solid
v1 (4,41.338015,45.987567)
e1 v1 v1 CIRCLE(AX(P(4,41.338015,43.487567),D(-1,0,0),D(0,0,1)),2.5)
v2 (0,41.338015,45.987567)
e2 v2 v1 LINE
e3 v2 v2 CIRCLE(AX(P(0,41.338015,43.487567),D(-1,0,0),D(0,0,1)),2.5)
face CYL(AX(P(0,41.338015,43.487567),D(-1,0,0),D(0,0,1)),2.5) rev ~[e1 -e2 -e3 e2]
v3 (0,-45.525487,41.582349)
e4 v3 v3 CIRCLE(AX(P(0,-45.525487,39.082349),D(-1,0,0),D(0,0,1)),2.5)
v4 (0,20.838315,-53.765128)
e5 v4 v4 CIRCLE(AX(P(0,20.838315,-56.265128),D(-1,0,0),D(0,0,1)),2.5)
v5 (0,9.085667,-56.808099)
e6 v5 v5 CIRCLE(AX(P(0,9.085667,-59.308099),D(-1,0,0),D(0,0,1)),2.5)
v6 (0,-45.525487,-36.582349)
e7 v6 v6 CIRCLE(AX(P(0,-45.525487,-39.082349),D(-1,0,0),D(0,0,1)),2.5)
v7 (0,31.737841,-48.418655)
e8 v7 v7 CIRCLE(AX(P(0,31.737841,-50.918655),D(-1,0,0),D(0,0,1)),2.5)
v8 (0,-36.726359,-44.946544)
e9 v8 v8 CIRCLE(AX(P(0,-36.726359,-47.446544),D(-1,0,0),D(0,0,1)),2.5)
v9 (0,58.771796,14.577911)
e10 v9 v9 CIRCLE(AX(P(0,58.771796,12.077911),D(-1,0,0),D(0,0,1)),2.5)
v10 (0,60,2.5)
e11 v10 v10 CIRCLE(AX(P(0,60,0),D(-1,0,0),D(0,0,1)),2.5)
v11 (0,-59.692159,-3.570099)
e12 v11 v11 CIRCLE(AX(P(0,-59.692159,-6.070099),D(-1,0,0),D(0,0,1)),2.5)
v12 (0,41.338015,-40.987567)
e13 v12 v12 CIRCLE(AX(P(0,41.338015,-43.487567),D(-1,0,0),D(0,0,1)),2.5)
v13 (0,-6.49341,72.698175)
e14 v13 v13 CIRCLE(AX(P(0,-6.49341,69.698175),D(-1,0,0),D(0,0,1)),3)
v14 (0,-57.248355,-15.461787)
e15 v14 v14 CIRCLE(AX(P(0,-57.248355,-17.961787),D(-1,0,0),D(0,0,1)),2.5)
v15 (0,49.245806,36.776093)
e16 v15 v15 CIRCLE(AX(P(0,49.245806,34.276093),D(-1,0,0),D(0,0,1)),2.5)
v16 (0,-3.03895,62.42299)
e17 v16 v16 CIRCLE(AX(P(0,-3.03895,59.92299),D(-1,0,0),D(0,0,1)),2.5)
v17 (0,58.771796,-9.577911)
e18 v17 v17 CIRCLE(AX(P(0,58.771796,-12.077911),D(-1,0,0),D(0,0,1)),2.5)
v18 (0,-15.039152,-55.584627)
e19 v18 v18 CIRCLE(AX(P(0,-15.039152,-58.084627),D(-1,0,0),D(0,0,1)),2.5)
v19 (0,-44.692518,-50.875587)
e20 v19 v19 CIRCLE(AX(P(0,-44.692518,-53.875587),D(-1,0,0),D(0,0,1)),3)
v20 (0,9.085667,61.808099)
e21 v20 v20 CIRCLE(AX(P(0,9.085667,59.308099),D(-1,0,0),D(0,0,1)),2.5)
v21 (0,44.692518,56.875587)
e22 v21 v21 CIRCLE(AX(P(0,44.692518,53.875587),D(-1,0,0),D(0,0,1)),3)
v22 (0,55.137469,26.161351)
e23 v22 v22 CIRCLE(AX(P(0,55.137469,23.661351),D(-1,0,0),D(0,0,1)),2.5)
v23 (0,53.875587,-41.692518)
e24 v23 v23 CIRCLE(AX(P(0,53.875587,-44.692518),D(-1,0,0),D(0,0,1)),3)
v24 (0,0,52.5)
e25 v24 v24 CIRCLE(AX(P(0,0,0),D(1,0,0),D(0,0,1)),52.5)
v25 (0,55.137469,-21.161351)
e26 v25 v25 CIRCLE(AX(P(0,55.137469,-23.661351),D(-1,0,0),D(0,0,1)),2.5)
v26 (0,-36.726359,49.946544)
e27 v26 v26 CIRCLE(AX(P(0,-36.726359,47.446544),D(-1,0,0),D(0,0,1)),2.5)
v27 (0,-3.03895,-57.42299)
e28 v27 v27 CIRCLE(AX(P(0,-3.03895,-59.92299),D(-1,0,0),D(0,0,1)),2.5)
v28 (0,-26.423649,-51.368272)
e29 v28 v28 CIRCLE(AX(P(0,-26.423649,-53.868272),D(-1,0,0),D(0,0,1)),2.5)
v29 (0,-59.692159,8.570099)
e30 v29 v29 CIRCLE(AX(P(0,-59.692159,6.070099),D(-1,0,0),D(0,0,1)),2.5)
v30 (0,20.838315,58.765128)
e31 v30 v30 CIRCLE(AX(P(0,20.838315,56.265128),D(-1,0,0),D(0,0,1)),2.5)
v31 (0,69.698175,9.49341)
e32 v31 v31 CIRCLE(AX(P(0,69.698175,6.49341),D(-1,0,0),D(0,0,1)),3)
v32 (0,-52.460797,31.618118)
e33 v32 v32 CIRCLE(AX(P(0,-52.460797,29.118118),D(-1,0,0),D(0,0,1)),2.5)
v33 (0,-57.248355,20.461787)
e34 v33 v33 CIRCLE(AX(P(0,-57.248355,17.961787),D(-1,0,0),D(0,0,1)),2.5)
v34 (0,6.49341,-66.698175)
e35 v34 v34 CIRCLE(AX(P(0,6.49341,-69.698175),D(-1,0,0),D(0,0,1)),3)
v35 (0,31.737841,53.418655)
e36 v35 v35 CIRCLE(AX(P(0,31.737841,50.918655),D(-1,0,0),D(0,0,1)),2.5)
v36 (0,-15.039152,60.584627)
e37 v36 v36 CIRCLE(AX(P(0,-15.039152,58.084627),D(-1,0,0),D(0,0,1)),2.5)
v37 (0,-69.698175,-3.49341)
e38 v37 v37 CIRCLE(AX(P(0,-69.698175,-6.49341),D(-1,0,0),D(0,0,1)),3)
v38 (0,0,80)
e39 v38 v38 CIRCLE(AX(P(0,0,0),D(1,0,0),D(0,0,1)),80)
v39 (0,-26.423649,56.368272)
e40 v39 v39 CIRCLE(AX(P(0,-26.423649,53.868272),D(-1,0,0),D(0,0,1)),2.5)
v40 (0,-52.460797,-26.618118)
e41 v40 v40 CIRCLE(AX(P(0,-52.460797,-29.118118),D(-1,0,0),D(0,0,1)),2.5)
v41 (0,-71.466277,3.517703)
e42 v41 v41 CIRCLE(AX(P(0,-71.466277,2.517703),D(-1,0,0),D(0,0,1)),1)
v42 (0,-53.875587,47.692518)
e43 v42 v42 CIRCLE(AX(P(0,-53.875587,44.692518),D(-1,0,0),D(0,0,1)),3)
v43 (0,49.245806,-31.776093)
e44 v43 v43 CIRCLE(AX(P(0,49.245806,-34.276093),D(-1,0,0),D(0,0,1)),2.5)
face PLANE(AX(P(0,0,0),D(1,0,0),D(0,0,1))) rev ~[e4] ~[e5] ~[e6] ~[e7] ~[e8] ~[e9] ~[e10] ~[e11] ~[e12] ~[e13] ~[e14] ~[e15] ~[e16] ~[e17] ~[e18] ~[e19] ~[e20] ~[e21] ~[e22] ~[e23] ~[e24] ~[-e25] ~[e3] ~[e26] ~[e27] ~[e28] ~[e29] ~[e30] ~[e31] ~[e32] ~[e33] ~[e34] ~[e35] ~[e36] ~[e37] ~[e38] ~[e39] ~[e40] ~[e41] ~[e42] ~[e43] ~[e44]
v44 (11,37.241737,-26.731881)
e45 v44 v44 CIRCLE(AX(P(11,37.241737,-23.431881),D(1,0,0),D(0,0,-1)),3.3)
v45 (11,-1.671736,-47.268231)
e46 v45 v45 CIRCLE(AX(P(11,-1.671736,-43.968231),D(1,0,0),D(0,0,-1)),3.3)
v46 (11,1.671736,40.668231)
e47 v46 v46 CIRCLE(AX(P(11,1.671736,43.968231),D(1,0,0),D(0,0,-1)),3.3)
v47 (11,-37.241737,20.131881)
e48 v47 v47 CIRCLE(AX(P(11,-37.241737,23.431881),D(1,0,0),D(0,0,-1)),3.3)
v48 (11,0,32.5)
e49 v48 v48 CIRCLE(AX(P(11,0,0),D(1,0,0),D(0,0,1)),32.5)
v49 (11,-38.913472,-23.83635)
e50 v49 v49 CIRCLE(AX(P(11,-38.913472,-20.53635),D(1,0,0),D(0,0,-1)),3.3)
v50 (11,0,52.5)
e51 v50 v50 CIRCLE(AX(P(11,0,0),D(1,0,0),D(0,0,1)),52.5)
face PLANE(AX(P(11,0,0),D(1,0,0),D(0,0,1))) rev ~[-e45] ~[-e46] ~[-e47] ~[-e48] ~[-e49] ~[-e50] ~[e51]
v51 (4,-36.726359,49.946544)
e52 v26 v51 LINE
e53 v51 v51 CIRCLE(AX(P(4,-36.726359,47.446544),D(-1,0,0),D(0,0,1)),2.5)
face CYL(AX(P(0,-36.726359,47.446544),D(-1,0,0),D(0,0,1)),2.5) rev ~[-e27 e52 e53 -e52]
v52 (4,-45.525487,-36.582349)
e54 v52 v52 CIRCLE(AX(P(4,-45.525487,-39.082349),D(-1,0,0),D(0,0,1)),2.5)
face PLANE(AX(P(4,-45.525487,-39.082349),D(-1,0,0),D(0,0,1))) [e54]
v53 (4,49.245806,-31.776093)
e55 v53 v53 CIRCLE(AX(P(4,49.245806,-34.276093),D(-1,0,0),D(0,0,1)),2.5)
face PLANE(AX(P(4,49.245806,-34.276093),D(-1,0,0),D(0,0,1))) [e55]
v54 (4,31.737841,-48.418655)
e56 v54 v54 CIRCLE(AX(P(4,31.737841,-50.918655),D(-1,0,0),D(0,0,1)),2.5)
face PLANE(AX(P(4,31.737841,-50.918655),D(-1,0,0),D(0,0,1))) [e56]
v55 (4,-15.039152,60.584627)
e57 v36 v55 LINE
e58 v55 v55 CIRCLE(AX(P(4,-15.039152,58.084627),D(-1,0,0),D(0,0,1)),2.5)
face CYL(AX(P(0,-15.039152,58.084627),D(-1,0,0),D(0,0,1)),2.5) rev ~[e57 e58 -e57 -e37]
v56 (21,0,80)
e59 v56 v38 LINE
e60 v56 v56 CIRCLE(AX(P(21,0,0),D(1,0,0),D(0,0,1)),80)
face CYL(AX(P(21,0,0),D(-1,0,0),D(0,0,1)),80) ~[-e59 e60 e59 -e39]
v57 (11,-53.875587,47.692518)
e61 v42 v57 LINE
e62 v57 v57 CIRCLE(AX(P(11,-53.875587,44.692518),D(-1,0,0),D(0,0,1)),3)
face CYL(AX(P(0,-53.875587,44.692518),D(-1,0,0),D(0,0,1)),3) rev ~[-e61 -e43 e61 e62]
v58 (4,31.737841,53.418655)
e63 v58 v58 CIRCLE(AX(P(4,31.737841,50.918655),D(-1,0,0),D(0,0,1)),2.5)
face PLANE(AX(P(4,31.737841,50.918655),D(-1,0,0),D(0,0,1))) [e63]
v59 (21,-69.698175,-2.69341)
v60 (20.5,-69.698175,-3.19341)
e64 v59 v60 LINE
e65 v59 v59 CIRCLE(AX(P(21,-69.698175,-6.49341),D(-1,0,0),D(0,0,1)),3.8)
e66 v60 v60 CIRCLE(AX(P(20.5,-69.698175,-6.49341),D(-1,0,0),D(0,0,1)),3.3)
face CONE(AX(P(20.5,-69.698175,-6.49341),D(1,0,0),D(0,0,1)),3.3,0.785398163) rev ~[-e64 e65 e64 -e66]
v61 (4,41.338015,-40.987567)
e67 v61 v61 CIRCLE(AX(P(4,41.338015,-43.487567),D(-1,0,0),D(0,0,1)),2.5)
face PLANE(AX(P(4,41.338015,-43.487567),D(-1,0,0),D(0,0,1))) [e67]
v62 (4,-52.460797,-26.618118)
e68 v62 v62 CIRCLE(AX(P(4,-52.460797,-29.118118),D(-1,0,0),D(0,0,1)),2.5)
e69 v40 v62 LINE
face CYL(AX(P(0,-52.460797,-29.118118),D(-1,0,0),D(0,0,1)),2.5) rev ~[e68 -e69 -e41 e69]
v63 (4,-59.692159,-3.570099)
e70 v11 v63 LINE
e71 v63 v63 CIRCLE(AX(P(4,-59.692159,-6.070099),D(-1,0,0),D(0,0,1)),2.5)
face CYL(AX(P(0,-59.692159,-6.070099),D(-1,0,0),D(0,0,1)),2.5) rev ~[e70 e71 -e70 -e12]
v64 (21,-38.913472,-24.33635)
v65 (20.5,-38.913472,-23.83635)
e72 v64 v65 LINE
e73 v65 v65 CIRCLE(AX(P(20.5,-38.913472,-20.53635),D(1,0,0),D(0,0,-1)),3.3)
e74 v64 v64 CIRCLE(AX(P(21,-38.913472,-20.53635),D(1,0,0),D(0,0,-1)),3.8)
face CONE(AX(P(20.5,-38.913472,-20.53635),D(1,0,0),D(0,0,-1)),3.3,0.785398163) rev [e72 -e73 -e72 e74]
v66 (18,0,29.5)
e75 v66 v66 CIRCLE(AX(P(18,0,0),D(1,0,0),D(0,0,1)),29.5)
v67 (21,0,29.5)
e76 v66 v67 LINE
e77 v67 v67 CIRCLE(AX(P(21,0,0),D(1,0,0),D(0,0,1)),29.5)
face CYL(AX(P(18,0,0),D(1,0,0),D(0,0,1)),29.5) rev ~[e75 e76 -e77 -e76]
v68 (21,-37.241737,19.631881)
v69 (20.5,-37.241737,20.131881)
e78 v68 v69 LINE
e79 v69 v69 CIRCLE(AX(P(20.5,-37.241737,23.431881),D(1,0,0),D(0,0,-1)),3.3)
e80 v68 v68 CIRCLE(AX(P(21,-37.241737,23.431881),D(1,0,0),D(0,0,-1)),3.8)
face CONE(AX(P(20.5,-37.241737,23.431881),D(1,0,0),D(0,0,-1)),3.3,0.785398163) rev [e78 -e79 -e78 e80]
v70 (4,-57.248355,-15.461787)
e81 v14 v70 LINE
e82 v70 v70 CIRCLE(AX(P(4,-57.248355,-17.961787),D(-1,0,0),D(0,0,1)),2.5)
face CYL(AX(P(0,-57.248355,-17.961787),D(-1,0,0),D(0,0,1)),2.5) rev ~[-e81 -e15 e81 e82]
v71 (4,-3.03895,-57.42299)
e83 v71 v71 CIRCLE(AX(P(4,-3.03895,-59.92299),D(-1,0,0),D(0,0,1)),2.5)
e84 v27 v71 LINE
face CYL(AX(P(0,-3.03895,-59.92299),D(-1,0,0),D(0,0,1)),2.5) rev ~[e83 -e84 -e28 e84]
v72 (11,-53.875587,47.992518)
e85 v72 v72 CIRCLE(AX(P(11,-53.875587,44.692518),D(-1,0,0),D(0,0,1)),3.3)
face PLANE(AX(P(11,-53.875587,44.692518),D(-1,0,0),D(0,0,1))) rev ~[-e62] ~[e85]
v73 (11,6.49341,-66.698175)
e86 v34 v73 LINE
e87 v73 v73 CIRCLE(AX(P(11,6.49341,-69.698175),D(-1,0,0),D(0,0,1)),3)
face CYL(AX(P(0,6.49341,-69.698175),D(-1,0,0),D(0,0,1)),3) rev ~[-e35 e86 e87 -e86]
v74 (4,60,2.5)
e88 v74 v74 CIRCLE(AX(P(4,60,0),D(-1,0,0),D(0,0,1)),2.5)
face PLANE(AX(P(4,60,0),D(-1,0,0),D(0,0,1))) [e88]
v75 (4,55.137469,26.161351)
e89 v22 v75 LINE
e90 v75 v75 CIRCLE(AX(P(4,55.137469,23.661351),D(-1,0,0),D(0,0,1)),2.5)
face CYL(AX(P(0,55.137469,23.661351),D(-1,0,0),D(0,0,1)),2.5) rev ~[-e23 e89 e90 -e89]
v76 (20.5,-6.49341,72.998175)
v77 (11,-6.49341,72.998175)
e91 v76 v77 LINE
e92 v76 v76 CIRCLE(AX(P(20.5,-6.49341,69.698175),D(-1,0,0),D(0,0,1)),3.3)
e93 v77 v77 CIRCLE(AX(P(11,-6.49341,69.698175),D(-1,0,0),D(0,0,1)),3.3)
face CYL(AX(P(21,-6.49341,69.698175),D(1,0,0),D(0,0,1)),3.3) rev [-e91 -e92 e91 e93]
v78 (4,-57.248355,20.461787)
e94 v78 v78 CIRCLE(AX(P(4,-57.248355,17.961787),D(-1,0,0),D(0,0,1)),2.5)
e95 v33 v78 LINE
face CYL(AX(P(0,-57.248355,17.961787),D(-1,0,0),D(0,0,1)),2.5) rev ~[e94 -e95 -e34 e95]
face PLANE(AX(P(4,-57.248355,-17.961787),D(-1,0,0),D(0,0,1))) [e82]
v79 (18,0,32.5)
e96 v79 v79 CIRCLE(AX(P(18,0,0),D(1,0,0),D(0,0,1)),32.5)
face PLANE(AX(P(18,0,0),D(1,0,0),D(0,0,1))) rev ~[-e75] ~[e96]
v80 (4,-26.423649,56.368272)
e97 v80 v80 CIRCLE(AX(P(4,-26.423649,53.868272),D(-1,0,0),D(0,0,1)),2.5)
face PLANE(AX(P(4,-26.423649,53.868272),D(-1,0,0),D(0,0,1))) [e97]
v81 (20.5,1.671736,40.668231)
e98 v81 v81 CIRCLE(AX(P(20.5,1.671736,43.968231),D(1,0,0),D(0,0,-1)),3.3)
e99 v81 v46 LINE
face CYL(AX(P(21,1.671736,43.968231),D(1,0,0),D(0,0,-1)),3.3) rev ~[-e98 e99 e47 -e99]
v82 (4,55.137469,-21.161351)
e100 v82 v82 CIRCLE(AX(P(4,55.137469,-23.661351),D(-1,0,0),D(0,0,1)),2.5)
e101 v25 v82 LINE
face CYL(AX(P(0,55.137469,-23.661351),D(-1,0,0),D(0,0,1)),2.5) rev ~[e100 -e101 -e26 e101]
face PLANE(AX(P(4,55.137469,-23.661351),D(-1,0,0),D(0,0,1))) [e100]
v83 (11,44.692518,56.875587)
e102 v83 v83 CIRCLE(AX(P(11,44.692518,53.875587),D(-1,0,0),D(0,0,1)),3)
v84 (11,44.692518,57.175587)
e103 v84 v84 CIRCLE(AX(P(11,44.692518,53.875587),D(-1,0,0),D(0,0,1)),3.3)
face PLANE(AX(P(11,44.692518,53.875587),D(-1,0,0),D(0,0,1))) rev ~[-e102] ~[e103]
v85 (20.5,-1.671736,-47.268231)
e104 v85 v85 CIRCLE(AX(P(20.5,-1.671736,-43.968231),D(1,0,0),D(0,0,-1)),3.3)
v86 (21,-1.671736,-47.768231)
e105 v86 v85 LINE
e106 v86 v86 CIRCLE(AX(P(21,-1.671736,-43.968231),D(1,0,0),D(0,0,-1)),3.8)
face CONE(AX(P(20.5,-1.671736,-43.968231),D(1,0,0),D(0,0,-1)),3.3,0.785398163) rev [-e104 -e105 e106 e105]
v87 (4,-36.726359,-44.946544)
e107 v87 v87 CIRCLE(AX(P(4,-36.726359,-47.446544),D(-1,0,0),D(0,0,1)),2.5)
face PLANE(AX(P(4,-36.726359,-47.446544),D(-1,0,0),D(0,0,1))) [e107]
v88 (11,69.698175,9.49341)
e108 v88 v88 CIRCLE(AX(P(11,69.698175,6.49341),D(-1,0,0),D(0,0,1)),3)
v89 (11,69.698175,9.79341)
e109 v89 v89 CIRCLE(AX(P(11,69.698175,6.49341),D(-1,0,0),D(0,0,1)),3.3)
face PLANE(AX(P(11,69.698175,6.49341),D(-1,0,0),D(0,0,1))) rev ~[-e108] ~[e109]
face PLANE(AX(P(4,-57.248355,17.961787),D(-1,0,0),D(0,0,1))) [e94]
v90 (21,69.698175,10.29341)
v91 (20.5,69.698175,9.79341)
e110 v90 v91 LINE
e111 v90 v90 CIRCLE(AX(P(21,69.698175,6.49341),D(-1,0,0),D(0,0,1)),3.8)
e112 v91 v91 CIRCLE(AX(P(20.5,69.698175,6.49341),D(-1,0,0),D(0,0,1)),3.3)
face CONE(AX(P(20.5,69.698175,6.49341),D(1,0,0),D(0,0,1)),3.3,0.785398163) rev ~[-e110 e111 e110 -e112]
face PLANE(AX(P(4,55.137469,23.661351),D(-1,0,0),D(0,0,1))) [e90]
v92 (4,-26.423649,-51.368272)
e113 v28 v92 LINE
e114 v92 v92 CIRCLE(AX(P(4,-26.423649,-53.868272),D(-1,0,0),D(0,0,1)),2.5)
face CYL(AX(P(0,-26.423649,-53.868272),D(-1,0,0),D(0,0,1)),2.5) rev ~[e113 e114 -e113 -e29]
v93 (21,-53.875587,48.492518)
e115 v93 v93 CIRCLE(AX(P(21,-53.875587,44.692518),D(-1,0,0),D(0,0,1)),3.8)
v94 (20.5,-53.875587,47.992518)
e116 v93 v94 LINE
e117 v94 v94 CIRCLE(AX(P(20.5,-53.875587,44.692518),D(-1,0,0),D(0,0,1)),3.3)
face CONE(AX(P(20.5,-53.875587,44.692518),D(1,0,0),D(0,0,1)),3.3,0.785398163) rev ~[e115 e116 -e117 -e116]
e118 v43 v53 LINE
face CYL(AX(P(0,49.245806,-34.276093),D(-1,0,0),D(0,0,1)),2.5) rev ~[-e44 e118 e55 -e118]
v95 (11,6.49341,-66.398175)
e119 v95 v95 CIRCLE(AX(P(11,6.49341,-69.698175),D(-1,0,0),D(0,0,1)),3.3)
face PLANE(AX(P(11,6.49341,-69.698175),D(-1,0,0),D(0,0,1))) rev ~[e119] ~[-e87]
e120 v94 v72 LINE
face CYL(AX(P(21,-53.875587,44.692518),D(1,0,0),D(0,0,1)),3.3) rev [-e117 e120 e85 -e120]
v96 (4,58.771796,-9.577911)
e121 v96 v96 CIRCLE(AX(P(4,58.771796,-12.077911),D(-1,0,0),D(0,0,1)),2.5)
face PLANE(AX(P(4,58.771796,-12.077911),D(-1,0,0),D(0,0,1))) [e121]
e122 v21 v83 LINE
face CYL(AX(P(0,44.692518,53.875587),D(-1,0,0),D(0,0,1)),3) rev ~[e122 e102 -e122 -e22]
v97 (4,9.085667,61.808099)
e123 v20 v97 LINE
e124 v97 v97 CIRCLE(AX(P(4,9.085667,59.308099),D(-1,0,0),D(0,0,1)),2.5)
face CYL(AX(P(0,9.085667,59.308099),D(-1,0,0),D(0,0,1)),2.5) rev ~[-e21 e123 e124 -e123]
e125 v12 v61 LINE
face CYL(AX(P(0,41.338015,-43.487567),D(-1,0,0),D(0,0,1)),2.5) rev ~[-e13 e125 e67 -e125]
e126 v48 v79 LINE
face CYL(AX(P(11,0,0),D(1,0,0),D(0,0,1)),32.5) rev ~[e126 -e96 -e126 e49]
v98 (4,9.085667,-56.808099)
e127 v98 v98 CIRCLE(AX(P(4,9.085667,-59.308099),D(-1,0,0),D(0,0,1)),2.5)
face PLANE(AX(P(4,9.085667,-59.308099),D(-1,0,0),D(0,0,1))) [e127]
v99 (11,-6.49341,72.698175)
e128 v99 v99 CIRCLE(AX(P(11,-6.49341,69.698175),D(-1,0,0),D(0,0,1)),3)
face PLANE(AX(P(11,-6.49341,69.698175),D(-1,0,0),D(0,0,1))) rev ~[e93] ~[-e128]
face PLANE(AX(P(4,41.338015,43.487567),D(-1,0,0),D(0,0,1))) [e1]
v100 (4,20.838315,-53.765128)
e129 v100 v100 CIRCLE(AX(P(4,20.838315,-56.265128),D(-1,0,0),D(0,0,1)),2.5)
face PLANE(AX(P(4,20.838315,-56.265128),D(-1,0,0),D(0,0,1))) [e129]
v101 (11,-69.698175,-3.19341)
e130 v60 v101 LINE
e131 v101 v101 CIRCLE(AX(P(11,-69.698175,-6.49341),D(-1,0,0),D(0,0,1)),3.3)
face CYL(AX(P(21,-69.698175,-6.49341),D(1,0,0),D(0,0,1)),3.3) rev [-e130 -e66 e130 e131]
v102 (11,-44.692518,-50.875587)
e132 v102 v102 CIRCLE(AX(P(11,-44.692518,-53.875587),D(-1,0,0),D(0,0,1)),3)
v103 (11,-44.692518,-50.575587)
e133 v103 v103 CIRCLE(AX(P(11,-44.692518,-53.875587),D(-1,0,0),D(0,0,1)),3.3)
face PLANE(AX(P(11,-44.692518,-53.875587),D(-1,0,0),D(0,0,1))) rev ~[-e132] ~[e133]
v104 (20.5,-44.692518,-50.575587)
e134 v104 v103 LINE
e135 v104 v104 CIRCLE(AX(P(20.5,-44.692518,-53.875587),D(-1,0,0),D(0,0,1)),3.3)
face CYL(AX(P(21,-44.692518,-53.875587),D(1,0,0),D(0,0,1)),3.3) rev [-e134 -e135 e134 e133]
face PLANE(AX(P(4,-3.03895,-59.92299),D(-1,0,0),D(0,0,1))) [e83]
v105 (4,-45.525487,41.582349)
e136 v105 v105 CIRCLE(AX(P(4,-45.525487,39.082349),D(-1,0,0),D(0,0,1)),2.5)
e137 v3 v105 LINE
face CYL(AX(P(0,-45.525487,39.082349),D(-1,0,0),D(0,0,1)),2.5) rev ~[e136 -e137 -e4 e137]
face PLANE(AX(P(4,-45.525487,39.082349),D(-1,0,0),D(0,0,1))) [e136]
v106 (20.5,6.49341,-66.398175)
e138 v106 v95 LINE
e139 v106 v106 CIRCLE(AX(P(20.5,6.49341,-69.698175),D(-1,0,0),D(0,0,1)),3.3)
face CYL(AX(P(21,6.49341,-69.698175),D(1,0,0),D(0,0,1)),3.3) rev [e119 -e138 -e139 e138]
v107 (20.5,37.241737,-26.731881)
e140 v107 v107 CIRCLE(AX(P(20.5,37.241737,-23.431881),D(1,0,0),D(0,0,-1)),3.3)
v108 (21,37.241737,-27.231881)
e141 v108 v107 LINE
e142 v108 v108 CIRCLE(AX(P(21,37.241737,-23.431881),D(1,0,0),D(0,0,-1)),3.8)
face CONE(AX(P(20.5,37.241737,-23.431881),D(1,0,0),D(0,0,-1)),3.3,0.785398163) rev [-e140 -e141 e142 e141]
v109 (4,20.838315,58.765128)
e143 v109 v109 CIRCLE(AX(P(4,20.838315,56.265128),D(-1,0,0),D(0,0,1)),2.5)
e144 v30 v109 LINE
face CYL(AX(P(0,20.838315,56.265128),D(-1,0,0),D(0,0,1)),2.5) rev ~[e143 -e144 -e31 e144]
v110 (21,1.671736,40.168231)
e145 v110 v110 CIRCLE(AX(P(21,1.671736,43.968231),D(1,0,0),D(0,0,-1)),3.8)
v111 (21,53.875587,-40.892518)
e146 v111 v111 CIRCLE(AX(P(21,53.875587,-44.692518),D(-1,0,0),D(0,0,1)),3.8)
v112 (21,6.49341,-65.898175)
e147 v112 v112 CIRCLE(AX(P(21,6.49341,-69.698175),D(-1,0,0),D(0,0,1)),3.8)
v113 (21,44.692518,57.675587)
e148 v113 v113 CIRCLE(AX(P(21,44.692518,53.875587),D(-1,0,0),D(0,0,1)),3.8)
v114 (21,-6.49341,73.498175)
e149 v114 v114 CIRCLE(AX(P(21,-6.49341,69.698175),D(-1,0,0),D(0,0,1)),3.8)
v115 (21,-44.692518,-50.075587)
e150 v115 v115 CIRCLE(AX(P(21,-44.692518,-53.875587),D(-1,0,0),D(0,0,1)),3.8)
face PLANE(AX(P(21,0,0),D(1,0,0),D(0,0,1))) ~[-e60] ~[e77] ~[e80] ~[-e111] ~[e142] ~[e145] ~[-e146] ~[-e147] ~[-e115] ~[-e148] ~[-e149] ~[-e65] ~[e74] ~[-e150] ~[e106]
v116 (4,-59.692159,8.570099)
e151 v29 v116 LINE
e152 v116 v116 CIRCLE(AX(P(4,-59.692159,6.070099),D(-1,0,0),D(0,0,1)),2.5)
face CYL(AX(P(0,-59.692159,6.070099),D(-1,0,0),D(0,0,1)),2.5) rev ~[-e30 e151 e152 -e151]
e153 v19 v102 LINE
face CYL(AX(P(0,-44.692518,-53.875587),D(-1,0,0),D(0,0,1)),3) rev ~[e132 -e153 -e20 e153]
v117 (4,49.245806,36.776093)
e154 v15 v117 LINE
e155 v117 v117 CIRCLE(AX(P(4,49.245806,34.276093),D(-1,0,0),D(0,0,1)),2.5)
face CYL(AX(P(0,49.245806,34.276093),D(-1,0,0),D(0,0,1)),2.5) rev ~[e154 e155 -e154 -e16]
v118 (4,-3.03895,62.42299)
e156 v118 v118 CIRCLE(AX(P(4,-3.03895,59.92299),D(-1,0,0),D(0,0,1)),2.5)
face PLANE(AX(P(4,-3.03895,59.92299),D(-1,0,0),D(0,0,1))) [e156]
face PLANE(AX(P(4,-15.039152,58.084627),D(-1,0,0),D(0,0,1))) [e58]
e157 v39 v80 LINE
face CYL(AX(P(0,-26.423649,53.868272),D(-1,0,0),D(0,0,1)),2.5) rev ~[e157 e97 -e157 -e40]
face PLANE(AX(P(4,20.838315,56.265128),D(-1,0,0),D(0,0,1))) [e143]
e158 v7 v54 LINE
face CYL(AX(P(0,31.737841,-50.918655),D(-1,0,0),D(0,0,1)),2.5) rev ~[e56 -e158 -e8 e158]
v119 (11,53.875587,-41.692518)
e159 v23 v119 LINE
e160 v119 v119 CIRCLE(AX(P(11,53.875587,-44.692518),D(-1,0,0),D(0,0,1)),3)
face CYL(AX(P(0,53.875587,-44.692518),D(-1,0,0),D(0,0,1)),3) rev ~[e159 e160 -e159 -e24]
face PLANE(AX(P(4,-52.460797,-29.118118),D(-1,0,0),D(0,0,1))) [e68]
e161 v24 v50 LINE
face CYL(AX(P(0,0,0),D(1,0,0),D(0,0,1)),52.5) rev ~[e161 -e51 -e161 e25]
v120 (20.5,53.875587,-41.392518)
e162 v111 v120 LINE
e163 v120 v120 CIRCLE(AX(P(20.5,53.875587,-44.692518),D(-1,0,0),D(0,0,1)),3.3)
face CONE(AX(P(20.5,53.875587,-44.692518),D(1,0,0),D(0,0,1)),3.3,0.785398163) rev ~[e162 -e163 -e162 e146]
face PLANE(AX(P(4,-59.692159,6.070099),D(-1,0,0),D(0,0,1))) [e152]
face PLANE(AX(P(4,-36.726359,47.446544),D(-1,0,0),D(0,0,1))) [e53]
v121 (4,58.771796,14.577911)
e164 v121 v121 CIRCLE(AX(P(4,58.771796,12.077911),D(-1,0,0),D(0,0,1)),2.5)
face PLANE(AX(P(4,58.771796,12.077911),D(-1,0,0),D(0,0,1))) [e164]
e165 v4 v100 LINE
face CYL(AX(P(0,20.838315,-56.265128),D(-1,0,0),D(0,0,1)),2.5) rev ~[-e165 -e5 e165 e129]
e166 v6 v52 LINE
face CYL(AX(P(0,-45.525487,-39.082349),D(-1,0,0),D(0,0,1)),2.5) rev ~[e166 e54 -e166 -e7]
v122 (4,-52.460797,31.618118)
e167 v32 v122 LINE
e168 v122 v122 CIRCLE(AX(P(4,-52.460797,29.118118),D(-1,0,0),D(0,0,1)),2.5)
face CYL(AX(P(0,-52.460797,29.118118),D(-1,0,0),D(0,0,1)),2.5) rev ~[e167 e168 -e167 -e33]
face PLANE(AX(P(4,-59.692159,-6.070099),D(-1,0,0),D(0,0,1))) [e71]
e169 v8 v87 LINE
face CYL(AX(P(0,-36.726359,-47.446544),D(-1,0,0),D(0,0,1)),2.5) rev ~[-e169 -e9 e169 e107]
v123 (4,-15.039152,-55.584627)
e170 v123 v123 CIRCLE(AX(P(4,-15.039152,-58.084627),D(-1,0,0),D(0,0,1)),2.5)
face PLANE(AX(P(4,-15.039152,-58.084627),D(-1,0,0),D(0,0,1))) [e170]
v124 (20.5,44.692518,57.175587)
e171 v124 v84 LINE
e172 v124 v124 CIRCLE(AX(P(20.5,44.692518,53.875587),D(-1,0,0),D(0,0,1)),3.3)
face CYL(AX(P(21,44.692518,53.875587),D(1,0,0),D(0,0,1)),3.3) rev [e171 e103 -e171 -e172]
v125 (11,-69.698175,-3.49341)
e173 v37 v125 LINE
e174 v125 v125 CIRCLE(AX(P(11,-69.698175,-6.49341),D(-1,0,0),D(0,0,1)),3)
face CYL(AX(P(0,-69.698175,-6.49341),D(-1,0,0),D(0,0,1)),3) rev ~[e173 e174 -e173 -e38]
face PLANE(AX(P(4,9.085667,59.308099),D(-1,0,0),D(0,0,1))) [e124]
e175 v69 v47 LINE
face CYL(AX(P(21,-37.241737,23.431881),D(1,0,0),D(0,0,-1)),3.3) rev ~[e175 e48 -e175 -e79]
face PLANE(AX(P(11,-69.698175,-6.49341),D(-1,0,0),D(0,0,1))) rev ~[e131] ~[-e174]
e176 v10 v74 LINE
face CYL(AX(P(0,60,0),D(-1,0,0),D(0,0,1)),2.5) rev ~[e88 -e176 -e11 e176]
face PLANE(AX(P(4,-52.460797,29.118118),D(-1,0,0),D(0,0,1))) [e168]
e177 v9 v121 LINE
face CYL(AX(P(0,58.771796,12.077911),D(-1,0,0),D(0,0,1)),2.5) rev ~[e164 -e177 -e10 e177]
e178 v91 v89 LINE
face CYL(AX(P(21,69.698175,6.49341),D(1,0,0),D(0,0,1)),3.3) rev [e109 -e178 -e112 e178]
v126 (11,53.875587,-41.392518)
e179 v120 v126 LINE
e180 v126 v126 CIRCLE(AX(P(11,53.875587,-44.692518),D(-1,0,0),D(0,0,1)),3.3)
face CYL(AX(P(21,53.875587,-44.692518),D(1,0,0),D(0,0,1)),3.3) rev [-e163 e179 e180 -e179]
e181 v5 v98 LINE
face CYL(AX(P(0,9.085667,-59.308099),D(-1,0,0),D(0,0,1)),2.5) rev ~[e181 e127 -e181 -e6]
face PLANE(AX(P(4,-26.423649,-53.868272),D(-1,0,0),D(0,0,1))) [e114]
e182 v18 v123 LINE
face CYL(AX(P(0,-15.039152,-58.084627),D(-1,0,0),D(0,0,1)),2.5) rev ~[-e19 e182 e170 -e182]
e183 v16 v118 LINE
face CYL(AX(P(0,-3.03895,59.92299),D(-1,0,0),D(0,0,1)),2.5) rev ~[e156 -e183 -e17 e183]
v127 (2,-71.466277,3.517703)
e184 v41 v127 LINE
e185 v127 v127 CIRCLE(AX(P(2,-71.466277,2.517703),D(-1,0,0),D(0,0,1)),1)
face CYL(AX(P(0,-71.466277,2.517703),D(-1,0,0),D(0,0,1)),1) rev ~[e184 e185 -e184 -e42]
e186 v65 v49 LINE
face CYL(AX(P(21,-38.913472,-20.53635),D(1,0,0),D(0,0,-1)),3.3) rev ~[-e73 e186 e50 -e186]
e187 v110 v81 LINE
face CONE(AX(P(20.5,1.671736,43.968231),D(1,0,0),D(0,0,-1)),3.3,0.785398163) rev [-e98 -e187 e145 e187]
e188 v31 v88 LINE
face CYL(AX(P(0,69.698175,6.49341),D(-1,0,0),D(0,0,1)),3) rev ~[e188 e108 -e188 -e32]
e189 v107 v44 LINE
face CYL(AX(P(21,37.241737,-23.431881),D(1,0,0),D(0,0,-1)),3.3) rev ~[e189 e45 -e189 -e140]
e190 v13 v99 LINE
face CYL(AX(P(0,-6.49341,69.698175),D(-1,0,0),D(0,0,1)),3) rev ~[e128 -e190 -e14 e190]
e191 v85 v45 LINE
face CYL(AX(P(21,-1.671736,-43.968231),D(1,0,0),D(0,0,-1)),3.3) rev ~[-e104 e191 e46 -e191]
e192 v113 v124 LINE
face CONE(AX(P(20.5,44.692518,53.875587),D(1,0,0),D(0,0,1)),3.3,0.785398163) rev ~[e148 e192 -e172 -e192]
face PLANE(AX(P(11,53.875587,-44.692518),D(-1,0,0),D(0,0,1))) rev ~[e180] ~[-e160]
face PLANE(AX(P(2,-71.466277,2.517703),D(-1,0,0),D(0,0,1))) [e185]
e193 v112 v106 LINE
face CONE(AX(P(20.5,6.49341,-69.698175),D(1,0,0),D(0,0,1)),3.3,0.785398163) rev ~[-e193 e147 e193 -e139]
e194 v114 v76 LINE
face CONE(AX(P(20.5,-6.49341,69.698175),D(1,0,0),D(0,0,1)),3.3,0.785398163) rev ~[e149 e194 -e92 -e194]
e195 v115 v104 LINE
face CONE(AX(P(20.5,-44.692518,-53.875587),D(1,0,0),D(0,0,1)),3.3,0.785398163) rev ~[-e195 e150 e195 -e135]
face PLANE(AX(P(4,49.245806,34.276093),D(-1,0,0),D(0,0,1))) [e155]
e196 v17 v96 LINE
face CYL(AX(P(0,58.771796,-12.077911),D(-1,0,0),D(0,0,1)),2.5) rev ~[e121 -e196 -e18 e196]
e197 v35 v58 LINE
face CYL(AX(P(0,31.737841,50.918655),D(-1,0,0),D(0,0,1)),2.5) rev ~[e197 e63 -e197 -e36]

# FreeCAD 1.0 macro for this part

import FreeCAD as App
import Part
import Sketcher
Q = App.Units.Quantity


def edges_at(feature, points):
    """Names of the edges that pass closest to the given points."""
    edges = feature.Shape.Edges
    near = lambda p: min(range(len(edges)), key=lambda i: edges[i].distToShape(Part.Vertex(*p))[0])
    return sorted({f"Edge{near(p) + 1}" for p in points})

doc = App.newDocument("Part")
body = doc.addObject("PartDesign::Body", "Body")

# Sketch on XY plane
sketch1 = body.newObject("Sketcher::SketchObject", "Sketch")
sketch1.AttachmentSupport = (doc.getObject("XY_Plane"), [""])
sketch1.MapMode = "FlatFace"
sketch1.addGeometry([
    Part.LineSegment(App.Vector(0, 80, 0), App.Vector(0, 52.5, 0)),  # 0
    Part.LineSegment(App.Vector(0, 52.5, 0), App.Vector(11, 52.5, 0)),  # 1
    Part.LineSegment(App.Vector(11, 52.5, 0), App.Vector(11, 32.5, 0)),  # 2
    Part.LineSegment(App.Vector(11, 32.5, 0), App.Vector(18, 32.5, 0)),  # 3
    Part.LineSegment(App.Vector(18, 32.5, 0), App.Vector(18, 29.5, 0)),  # 4
    Part.LineSegment(App.Vector(18, 29.5, 0), App.Vector(21, 29.5, 0)),  # 5
    Part.LineSegment(App.Vector(21, 29.5, 0), App.Vector(21, 80, 0)),  # 6
    Part.LineSegment(App.Vector(21, 80, 0), App.Vector(0, 80, 0)),  # 7
], False)
sketch1.addConstraint([
    Sketcher.Constraint("Coincident", 0, 2, 1, 1),
    Sketcher.Constraint("Coincident", 1, 2, 2, 1),
    Sketcher.Constraint("Coincident", 2, 2, 3, 1),
    Sketcher.Constraint("Coincident", 3, 2, 4, 1),
    Sketcher.Constraint("Coincident", 4, 2, 5, 1),
    Sketcher.Constraint("Coincident", 5, 2, 6, 1),
    Sketcher.Constraint("Coincident", 6, 2, 7, 1),
    Sketcher.Constraint("Coincident", 7, 2, 0, 1),
    Sketcher.Constraint("Vertical", 0),
    Sketcher.Constraint("Horizontal", 1),
    Sketcher.Constraint("Vertical", 2),
    Sketcher.Constraint("Horizontal", 3),
    Sketcher.Constraint("Vertical", 4),
    Sketcher.Constraint("Horizontal", 5),
    Sketcher.Constraint("Vertical", 6),
    Sketcher.Constraint("Horizontal", 7),
    Sketcher.Constraint("PointOnObject", 0, 2, -2),
    Sketcher.Constraint("Equal", 5, 4),
    Sketcher.Constraint("DistanceX", 1, 1, 1, 2, Q("11 mm")),
    Sketcher.Constraint("DistanceX", 3, 1, 3, 2, Q("7 mm")),
    Sketcher.Constraint("DistanceX", 5, 1, 5, 2, Q("3 mm")),
    Sketcher.Constraint("DistanceY", 2, 2, 2, 1, Q("20 mm")),
    Sketcher.Constraint("DistanceY", 0, 2, 0, 1, Q("27.5 mm")),
    Sketcher.Constraint("DistanceY", -1, 1, 6, 2, Q("80 mm")),
])
revolution = body.newObject("PartDesign::Revolution", "Revolution")
revolution.Profile = sketch1
revolution.ReferenceAxis = (sketch1, ["H_Axis"])
revolution.Angle = 360

# Sketch on YZ plane
sketch2 = body.newObject("Sketcher::SketchObject", "Sketch001")
sketch2.AttachmentSupport = (doc.getObject("YZ_Plane"), [""])
sketch2.MapMode = "FlatFace"
sketch2.addGeometry([
    Part.Circle(App.Vector(60, 0, 0), App.Vector(0, 0, 1), 2.5),  # 0
    Part.Circle(App.Vector(58.8, 12.1, 0), App.Vector(0, 0, 1), 2.5),  # 1
    Part.Circle(App.Vector(55.1, 23.7, 0), App.Vector(0, 0, 1), 2.5),  # 2
    Part.Circle(App.Vector(49.2, 34.3, 0), App.Vector(0, 0, 1), 2.5),  # 3
    Part.Circle(App.Vector(41.3, 43.5, 0), App.Vector(0, 0, 1), 2.5),  # 4
    Part.Circle(App.Vector(31.7, 50.9, 0), App.Vector(0, 0, 1), 2.5),  # 5
    Part.Circle(App.Vector(20.8, 56.3, 0), App.Vector(0, 0, 1), 2.5),  # 6
    Part.Circle(App.Vector(9.1, 59.3, 0), App.Vector(0, 0, 1), 2.5),  # 7
    Part.Circle(App.Vector(-3, 59.9, 0), App.Vector(0, 0, 1), 2.5),  # 8
    Part.Circle(App.Vector(-15, 58.1, 0), App.Vector(0, 0, 1), 2.5),  # 9
    Part.Circle(App.Vector(-26.4, 53.9, 0), App.Vector(0, 0, 1), 2.5),  # 10
    Part.Circle(App.Vector(-36.7, 47.4, 0), App.Vector(0, 0, 1), 2.5),  # 11
    Part.Circle(App.Vector(-45.5, 39.1, 0), App.Vector(0, 0, 1), 2.5),  # 12
    Part.Circle(App.Vector(-52.5, 29.1, 0), App.Vector(0, 0, 1), 2.5),  # 13
    Part.Circle(App.Vector(-57.2, 18, 0), App.Vector(0, 0, 1), 2.5),  # 14
    Part.Circle(App.Vector(-59.7, 6.1, 0), App.Vector(0, 0, 1), 2.5),  # 15
    Part.Circle(App.Vector(-59.7, -6.1, 0), App.Vector(0, 0, 1), 2.5),  # 16
    Part.Circle(App.Vector(-57.2, -18, 0), App.Vector(0, 0, 1), 2.5),  # 17
    Part.Circle(App.Vector(-52.5, -29.1, 0), App.Vector(0, 0, 1), 2.5),  # 18
    Part.Circle(App.Vector(-45.5, -39.1, 0), App.Vector(0, 0, 1), 2.5),  # 19
    Part.Circle(App.Vector(-36.7, -47.4, 0), App.Vector(0, 0, 1), 2.5),  # 20
    Part.Circle(App.Vector(-26.4, -53.9, 0), App.Vector(0, 0, 1), 2.5),  # 21
    Part.Circle(App.Vector(-15, -58.1, 0), App.Vector(0, 0, 1), 2.5),  # 22
    Part.Circle(App.Vector(-3, -59.9, 0), App.Vector(0, 0, 1), 2.5),  # 23
    Part.Circle(App.Vector(9.1, -59.3, 0), App.Vector(0, 0, 1), 2.5),  # 24
    Part.Circle(App.Vector(20.8, -56.3, 0), App.Vector(0, 0, 1), 2.5),  # 25
    Part.Circle(App.Vector(31.7, -50.9, 0), App.Vector(0, 0, 1), 2.5),  # 26
    Part.Circle(App.Vector(41.3, -43.5, 0), App.Vector(0, 0, 1), 2.5),  # 27
    Part.Circle(App.Vector(49.2, -34.3, 0), App.Vector(0, 0, 1), 2.5),  # 28
    Part.Circle(App.Vector(55.1, -23.7, 0), App.Vector(0, 0, 1), 2.5),  # 29
    Part.Circle(App.Vector(58.8, -12.1, 0), App.Vector(0, 0, 1), 2.5),  # 30
], False)
sketch2.addConstraint([
    Sketcher.Constraint("Equal", 0, 1),
    Sketcher.Constraint("Equal", 1, 2),
    Sketcher.Constraint("Equal", 2, 3),
    Sketcher.Constraint("Equal", 3, 4),
    Sketcher.Constraint("Equal", 4, 5),
    Sketcher.Constraint("Equal", 5, 6),
    Sketcher.Constraint("Equal", 6, 7),
    Sketcher.Constraint("Equal", 7, 8),
    Sketcher.Constraint("Equal", 8, 9),
    Sketcher.Constraint("Equal", 9, 10),
    Sketcher.Constraint("Equal", 10, 11),
    Sketcher.Constraint("Equal", 11, 12),
    Sketcher.Constraint("Equal", 12, 13),
    Sketcher.Constraint("Equal", 13, 14),
    Sketcher.Constraint("Equal", 14, 15),
    Sketcher.Constraint("Equal", 15, 16),
    Sketcher.Constraint("Equal", 16, 17),
    Sketcher.Constraint("Equal", 17, 18),
    Sketcher.Constraint("Equal", 18, 19),
    Sketcher.Constraint("Equal", 19, 20),
    Sketcher.Constraint("Equal", 20, 21),
    Sketcher.Constraint("Equal", 21, 22),
    Sketcher.Constraint("Equal", 22, 23),
    Sketcher.Constraint("Equal", 23, 24),
    Sketcher.Constraint("Equal", 24, 25),
    Sketcher.Constraint("Equal", 25, 26),
    Sketcher.Constraint("Equal", 26, 27),
    Sketcher.Constraint("Equal", 27, 28),
    Sketcher.Constraint("Equal", 28, 29),
    Sketcher.Constraint("Equal", 29, 30),
    Sketcher.Constraint("Symmetric", 15, 3, 16, 3, -1),
    Sketcher.Constraint("Symmetric", 14, 3, 17, 3, -1),
    Sketcher.Constraint("Symmetric", 13, 3, 18, 3, -1),
    Sketcher.Constraint("Symmetric", 12, 3, 19, 3, -1),
    Sketcher.Constraint("Symmetric", 11, 3, 20, 3, -1),
    Sketcher.Constraint("Symmetric", 10, 3, 21, 3, -1),
    Sketcher.Constraint("Symmetric", 9, 3, 22, 3, -1),
    Sketcher.Constraint("Symmetric", 8, 3, 23, 3, -1),
    Sketcher.Constraint("Symmetric", 7, 3, 24, 3, -1),
    Sketcher.Constraint("Symmetric", 6, 3, 25, 3, -1),
    Sketcher.Constraint("Symmetric", 5, 3, 26, 3, -1),
    Sketcher.Constraint("Symmetric", 4, 3, 27, 3, -1),
    Sketcher.Constraint("Symmetric", 3, 3, 28, 3, -1),
    Sketcher.Constraint("Symmetric", 2, 3, 29, 3, -1),
    Sketcher.Constraint("Symmetric", 1, 3, 30, 3, -1),
    Sketcher.Constraint("PointOnObject", 0, 3, -1),
    Sketcher.Constraint("Diameter", 0, Q("5 mm")),
    Sketcher.Constraint("DistanceX", -1, 1, 0, 3, Q("60 mm")),
    Sketcher.Constraint("DistanceY", -1, 1, 7, 3, Q("59.308099 mm")),
    Sketcher.Constraint("DistanceY", -1, 1, 15, 3, Q("6.070099 mm")),
    Sketcher.Constraint("DistanceX", 6, 3, 4, 3, Q("20.4997 mm")),
    Sketcher.Constraint("DistanceX", 9, 3, 8, 3, Q("12.000202 mm")),
    Sketcher.Constraint("DistanceY", 6, 3, 9, 3, Q("1.819499 mm")),
    Sketcher.Constraint("DistanceX", 10, 3, 8, 3, Q("23.384699 mm")),
    Sketcher.Constraint("DistanceX", 15, 3, 11, 3, Q("22.9658 mm")),
    Sketcher.Constraint("DistanceY", -1, 1, 1, 3, Q("12.077911 mm")),
    Sketcher.Constraint("DistanceX", -1, 1, 2, 3, Q("55.137469 mm")),
    Sketcher.Constraint("DistanceY", -1, 1, 2, 3, Q("23.661351 mm")),
    Sketcher.Constraint("DistanceX", -1, 1, 5, 3, Q("31.737841 mm")),
    Sketcher.Constraint("DistanceX", 8, 3, -1, 1, Q("3.03895 mm")),
    Sketcher.Constraint("DistanceY", -1, 1, 8, 3, Q("59.92299 mm")),
    Sketcher.Constraint("DistanceX", 11, 3, -1, 1, Q("36.726359 mm")),
    Sketcher.Constraint("DistanceY", -1, 1, 12, 3, Q("39.082349 mm")),
    Sketcher.Constraint("DistanceY", 2, 3, 3, 3, Q("10.614742 mm")),
    Sketcher.Constraint("DistanceX", 3, 3, 1, 3, Q("9.52599 mm")),
    Sketcher.Constraint("DistanceX", 4, 3, 3, 3, Q("7.907791 mm")),
    Sketcher.Constraint("DistanceY", 4, 3, 5, 3, Q("7.431088 mm")),
    Sketcher.Constraint("DistanceY", 4, 3, 6, 3, Q("12.777561 mm")),
    Sketcher.Constraint("DistanceX", 7, 3, 6, 3, Q("11.752649 mm")),
    Sketcher.Constraint("DistanceY", 6, 3, 7, 3, Q("3.042972 mm")),
    Sketcher.Constraint("DistanceX", 9, 3, 7, 3, Q("24.124819 mm")),
    Sketcher.Constraint("DistanceY", 10, 3, 8, 3, Q("6.054718 mm")),
    Sketcher.Constraint("DistanceY", 11, 3, 10, 3, Q("6.421728 mm")),
    Sketcher.Constraint("DistanceX", 12, 3, 11, 3, Q("8.799128 mm")),
    Sketcher.Constraint("DistanceX", 13, 3, 12, 3, Q("6.93531 mm")),
    Sketcher.Constraint("DistanceY", 13, 3, 12, 3, Q("9.964231 mm")),
    Sketcher.Constraint("DistanceX", 14, 3, 13, 3, Q("4.787558 mm")),
    Sketcher.Constraint("DistanceY", 14, 3, 13, 3, Q("11.15633 mm")),
])
pocket1 = body.newObject("PartDesign::Pocket", "Pocket")
pocket1.Profile = sketch2
pocket1.Length = 4
pocket1.Reversed = True

# Sketch on YZ plane
sketch3 = body.newObject("Sketcher::SketchObject", "Sketch002")
sketch3.AttachmentSupport = (doc.getObject("YZ_Plane"), [""])
sketch3.MapMode = "FlatFace"
sketch3.addGeometry([
    Part.Circle(App.Vector(44.7, 53.9, 0), App.Vector(0, 0, 1), 3),  # 0
    Part.Circle(App.Vector(-6.5, 69.7, 0), App.Vector(0, 0, 1), 3),  # 1
    Part.Circle(App.Vector(-53.9, 44.7, 0), App.Vector(0, 0, 1), 3),  # 2
    Part.Circle(App.Vector(-69.7, -6.5, 0), App.Vector(0, 0, 1), 3),  # 3
    Part.Circle(App.Vector(-44.7, -53.9, 0), App.Vector(0, 0, 1), 3),  # 4
    Part.Circle(App.Vector(6.5, -69.7, 0), App.Vector(0, 0, 1), 3),  # 5
    Part.Circle(App.Vector(53.9, -44.7, 0), App.Vector(0, 0, 1), 3),  # 6
    Part.Circle(App.Vector(69.7, 6.5, 0), App.Vector(0, 0, 1), 3),  # 7
], False)
sketch3.addConstraint([
    Sketcher.Constraint("Equal", 0, 1),
    Sketcher.Constraint("Equal", 1, 2),
    Sketcher.Constraint("Equal", 2, 3),
    Sketcher.Constraint("Equal", 3, 4),
    Sketcher.Constraint("Equal", 4, 5),
    Sketcher.Constraint("Equal", 5, 6),
    Sketcher.Constraint("Equal", 6, 7),
    Sketcher.Constraint("Symmetric", 0, 3, 4, 3, -1, 1),
    Sketcher.Constraint("Symmetric", 1, 3, 5, 3, -1, 1),
    Sketcher.Constraint("Symmetric", 2, 3, 6, 3, -1, 1),
    Sketcher.Constraint("Symmetric", 3, 3, 7, 3, -1, 1),
    Sketcher.Constraint("Diameter", 0, Q("6 mm")),
    Sketcher.Constraint("DistanceX", 1, 3, -1, 1, Q("6.49341 mm")),
    Sketcher.Constraint("DistanceY", 3, 3, -1, 1, Q("6.49341 mm")),
    Sketcher.Constraint("DistanceX", 1, 3, 0, 3, Q("51.185928 mm")),
    Sketcher.Constraint("DistanceY", 0, 3, 1, 3, Q("15.822589 mm")),
    Sketcher.Constraint("DistanceY", 2, 3, 0, 3, Q("9.183069 mm")),
    Sketcher.Constraint("DistanceX", 3, 3, 2, 3, Q("15.822589 mm")),
    Sketcher.Constraint("DistanceY", 3, 3, 2, 3, Q("51.185928 mm")),
    Sketcher.Constraint("DistanceX", 2, 3, 4, 3, Q("9.183069 mm")),
])
pocket2 = body.newObject("PartDesign::Pocket", "Pocket001")
pocket2.Profile = sketch3
pocket2.Length = 11
pocket2.Reversed = True

# Sketch on YZ plane
sketch4 = body.newObject("Sketcher::SketchObject", "Sketch003")
sketch4.AttachmentSupport = (doc.getObject("YZ_Plane"), [""])
sketch4.MapMode = "FlatFace"
sketch4.AttachmentOffset = App.Placement(App.Vector(0, 0, 21), App.Rotation())
sketch4.addGeometry([
    Part.Circle(App.Vector(44.7, 53.9, 0), App.Vector(0, 0, 1), 3.3),  # 0
    Part.Circle(App.Vector(-6.5, 69.7, 0), App.Vector(0, 0, 1), 3.3),  # 1
    Part.Circle(App.Vector(-53.9, 44.7, 0), App.Vector(0, 0, 1), 3.3),  # 2
    Part.Circle(App.Vector(-69.7, -6.5, 0), App.Vector(0, 0, 1), 3.3),  # 3
    Part.Circle(App.Vector(-44.7, -53.9, 0), App.Vector(0, 0, 1), 3.3),  # 4
    Part.Circle(App.Vector(6.5, -69.7, 0), App.Vector(0, 0, 1), 3.3),  # 5
    Part.Circle(App.Vector(53.9, -44.7, 0), App.Vector(0, 0, 1), 3.3),  # 6
    Part.Circle(App.Vector(69.7, 6.5, 0), App.Vector(0, 0, 1), 3.3),  # 7
], False)
sketch4.addConstraint([
    Sketcher.Constraint("Equal", 0, 1),
    Sketcher.Constraint("Equal", 1, 2),
    Sketcher.Constraint("Equal", 2, 3),
    Sketcher.Constraint("Equal", 3, 4),
    Sketcher.Constraint("Equal", 4, 5),
    Sketcher.Constraint("Equal", 5, 6),
    Sketcher.Constraint("Equal", 6, 7),
    Sketcher.Constraint("Symmetric", 0, 3, 4, 3, -1, 1),
    Sketcher.Constraint("Symmetric", 1, 3, 5, 3, -1, 1),
    Sketcher.Constraint("Symmetric", 2, 3, 6, 3, -1, 1),
    Sketcher.Constraint("Symmetric", 3, 3, 7, 3, -1, 1),
    Sketcher.Constraint("Diameter", 0, Q("6.6 mm")),
    Sketcher.Constraint("DistanceX", 1, 3, -1, 1, Q("6.49341 mm")),
    Sketcher.Constraint("DistanceY", 3, 3, -1, 1, Q("6.49341 mm")),
    Sketcher.Constraint("DistanceX", 1, 3, 0, 3, Q("51.185928 mm")),
    Sketcher.Constraint("DistanceY", 0, 3, 1, 3, Q("15.822589 mm")),
    Sketcher.Constraint("DistanceY", 2, 3, 0, 3, Q("9.183069 mm")),
    Sketcher.Constraint("DistanceX", 3, 3, 2, 3, Q("15.822589 mm")),
    Sketcher.Constraint("DistanceY", 3, 3, 2, 3, Q("51.185928 mm")),
    Sketcher.Constraint("DistanceX", 2, 3, 4, 3, Q("9.183069 mm")),
])
pocket3 = body.newObject("PartDesign::Pocket", "Pocket002")
pocket3.Profile = sketch4
pocket3.Length = 10

# Sketch on YZ plane
sketch5 = body.newObject("Sketcher::SketchObject", "Sketch004")
sketch5.AttachmentSupport = (doc.getObject("YZ_Plane"), [""])
sketch5.MapMode = "FlatFace"
sketch5.addGeometry(Part.Circle(App.Vector(-71.5, 2.5, 0), App.Vector(0, 0, 1), 1), False)
sketch5.addConstraint([
    Sketcher.Constraint("Diameter", 0, Q("2 mm")),
    Sketcher.Constraint("DistanceX", 0, 3, -1, 1, Q("71.466277 mm")),
    Sketcher.Constraint("DistanceY", -1, 1, 0, 3, Q("2.517703 mm")),
])
pocket4 = body.newObject("PartDesign::Pocket", "Pocket003")
pocket4.Profile = sketch5
pocket4.Length = 2
pocket4.Reversed = True

# Sketch on YZ plane
sketch6 = body.newObject("Sketcher::SketchObject", "Sketch005")
sketch6.AttachmentSupport = (doc.getObject("YZ_Plane"), [""])
sketch6.MapMode = "FlatFace"
sketch6.AttachmentOffset = App.Placement(App.Vector(0, 0, 21), App.Rotation())
sketch6.addGeometry(Part.Circle(App.Vector(37.2, -23.4, 0), App.Vector(0, 0, 1), 3.3), False)
sketch6.addConstraint([
    Sketcher.Constraint("Diameter", 0, Q("6.6 mm")),
    Sketcher.Constraint("DistanceY", 0, 3, -1, 1, Q("23.431881 mm")),
    Sketcher.Constraint("DistanceX", -1, 1, 0, 3, Q("37.241737 mm")),
])
pocket5 = body.newObject("PartDesign::Pocket", "Pocket004")
pocket5.Profile = sketch6
pocket5.Type = "UpToFirst"

# Sketch on YZ plane
sketch7 = body.newObject("Sketcher::SketchObject", "Sketch006")
sketch7.AttachmentSupport = (doc.getObject("YZ_Plane"), [""])
sketch7.MapMode = "FlatFace"
sketch7.AttachmentOffset = App.Placement(App.Vector(0, 0, 21), App.Rotation())
sketch7.addGeometry(Part.Circle(App.Vector(-38.9, -20.5, 0), App.Vector(0, 0, 1), 3.3), False)
sketch7.addConstraint([
    Sketcher.Constraint("Diameter", 0, Q("6.6 mm")),
    Sketcher.Constraint("DistanceY", 0, 3, -1, 1, Q("20.53635 mm")),
    Sketcher.Constraint("DistanceX", 0, 3, -1, 1, Q("38.913472 mm")),
])
pocket6 = body.newObject("PartDesign::Pocket", "Pocket005")
pocket6.Profile = sketch7
pocket6.Type = "UpToFirst"

# Sketch on YZ plane
sketch8 = body.newObject("Sketcher::SketchObject", "Sketch007")
sketch8.AttachmentSupport = (doc.getObject("YZ_Plane"), [""])
sketch8.MapMode = "FlatFace"
sketch8.AttachmentOffset = App.Placement(App.Vector(0, 0, 21), App.Rotation())
sketch8.addGeometry(Part.Circle(App.Vector(1.7, 44, 0), App.Vector(0, 0, 1), 3.3), False)
sketch8.addConstraint([
    Sketcher.Constraint("Diameter", 0, Q("6.6 mm")),
    Sketcher.Constraint("DistanceY", -1, 1, 0, 3, Q("43.968231 mm")),
    Sketcher.Constraint("DistanceX", -1, 1, 0, 3, Q("1.671736 mm")),
])
pocket7 = body.newObject("PartDesign::Pocket", "Pocket006")
pocket7.Profile = sketch8
pocket7.Type = "UpToFirst"

# Sketch on YZ plane
sketch9 = body.newObject("Sketcher::SketchObject", "Sketch008")
sketch9.AttachmentSupport = (doc.getObject("YZ_Plane"), [""])
sketch9.MapMode = "FlatFace"
sketch9.AttachmentOffset = App.Placement(App.Vector(0, 0, 21), App.Rotation())
sketch9.addGeometry(Part.Circle(App.Vector(-37.2, 23.4, 0), App.Vector(0, 0, 1), 3.3), False)
sketch9.addConstraint([
    Sketcher.Constraint("Diameter", 0, Q("6.6 mm")),
    Sketcher.Constraint("DistanceY", -1, 1, 0, 3, Q("23.431881 mm")),
    Sketcher.Constraint("DistanceX", 0, 3, -1, 1, Q("37.241737 mm")),
])
pocket8 = body.newObject("PartDesign::Pocket", "Pocket007")
pocket8.Profile = sketch9
pocket8.Type = "UpToFirst"

# Sketch on YZ plane
sketch10 = body.newObject("Sketcher::SketchObject", "Sketch009")
sketch10.AttachmentSupport = (doc.getObject("YZ_Plane"), [""])
sketch10.MapMode = "FlatFace"
sketch10.AttachmentOffset = App.Placement(App.Vector(0, 0, 21), App.Rotation())
sketch10.addGeometry(Part.Circle(App.Vector(-1.7, -44, 0), App.Vector(0, 0, 1), 3.3), False)
sketch10.addConstraint([
    Sketcher.Constraint("Diameter", 0, Q("6.6 mm")),
    Sketcher.Constraint("DistanceY", 0, 3, -1, 1, Q("43.968231 mm")),
    Sketcher.Constraint("DistanceX", 0, 3, -1, 1, Q("1.671736 mm")),
])
pocket9 = body.newObject("PartDesign::Pocket", "Pocket008")
pocket9.Profile = sketch10
pocket9.Type = "UpToFirst"
doc.recompute()

chamfer = body.newObject("PartDesign::Chamfer", "Chamfer")
chamfer.Base = (pocket9, edges_at(pocket9, [
    (21, 53.876, -47.993),
    (21, -6.493, 66.398),
    (21, -53.876, 41.393),
    (21, -69.698, -9.793),
    (21, -44.693, -57.176),
    (21, 6.493, -72.998),
    (21, 69.698, 3.193),
    (21, 44.693, 50.576),
    (21, 37.242, -20.132),
    (21, -1.672, -40.668),
    (21, -38.913, -17.236),
    (21, 1.672, 47.268),
    (21, -37.242, 26.732),
]))
chamfer.Size = 0.5

doc.recompute()
